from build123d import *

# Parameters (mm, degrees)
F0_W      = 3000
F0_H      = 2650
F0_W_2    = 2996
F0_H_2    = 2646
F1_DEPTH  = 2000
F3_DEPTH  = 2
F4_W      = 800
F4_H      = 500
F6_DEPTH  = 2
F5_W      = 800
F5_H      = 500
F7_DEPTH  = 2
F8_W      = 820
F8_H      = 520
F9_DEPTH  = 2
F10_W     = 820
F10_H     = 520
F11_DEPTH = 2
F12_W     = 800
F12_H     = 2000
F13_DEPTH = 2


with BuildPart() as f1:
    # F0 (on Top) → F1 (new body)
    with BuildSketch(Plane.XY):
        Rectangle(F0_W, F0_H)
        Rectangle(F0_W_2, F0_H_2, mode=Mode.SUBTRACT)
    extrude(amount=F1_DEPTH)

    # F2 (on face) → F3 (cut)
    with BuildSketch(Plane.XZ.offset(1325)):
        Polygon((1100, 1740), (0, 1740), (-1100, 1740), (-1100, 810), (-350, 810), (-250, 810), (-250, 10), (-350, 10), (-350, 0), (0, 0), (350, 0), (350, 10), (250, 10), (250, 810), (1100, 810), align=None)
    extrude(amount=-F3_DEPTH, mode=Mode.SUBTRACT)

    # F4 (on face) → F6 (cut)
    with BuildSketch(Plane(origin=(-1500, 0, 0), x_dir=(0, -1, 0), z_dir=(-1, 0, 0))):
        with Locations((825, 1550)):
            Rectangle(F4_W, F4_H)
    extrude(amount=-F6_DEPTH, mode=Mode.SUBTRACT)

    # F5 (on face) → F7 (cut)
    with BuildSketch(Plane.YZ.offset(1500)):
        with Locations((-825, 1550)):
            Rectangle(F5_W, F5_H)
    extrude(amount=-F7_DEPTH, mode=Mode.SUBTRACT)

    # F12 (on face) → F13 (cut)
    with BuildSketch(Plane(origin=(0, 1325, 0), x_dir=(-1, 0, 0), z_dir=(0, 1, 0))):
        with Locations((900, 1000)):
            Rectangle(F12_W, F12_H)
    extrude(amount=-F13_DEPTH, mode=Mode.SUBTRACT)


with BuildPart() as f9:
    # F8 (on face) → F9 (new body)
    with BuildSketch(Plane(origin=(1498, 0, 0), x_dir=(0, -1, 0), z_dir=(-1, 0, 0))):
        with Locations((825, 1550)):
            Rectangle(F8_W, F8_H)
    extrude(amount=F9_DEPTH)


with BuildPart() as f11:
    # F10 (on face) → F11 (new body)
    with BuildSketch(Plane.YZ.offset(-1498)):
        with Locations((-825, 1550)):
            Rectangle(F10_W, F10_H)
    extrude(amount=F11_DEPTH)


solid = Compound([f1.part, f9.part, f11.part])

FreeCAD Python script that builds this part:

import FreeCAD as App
import Part
import Sketcher

doc = App.newDocument("Part")
body = doc.addObject("PartDesign::Body", "Body")

# Sketch on XY plane
sketch1 = body.newObject("Sketcher::SketchObject", "Sketch")
sketch1.AttachmentSupport = (doc.getObject("XY_Plane"), [""])
sketch1.MapMode = "FlatFace"
sketch1.addGeometry(Part.LineSegment(App.Vector(-1500, 1325, 0), App.Vector(-1500, -1325, 0)), False)
sketch1.addGeometry(Part.LineSegment(App.Vector(-1500, -1325, 0), App.Vector(1500, -1325, 0)), False)
sketch1.addGeometry(Part.LineSegment(App.Vector(1500, -1325, 0), App.Vector(1500, 1325, 0)), False)
sketch1.addGeometry(Part.LineSegment(App.Vector(1500, 1325, 0), App.Vector(-1500, 1325, 0)), False)
sketch1.addGeometry(Part.LineSegment(App.Vector(1498, -1323, 0), App.Vector(-1498, -1323, 0)), False)
sketch1.addGeometry(Part.LineSegment(App.Vector(-1498, -1323, 0), App.Vector(-1498, 1323, 0)), False)
sketch1.addGeometry(Part.LineSegment(App.Vector(-1498, 1323, 0), App.Vector(1498, 1323, 0)), False)
sketch1.addGeometry(Part.LineSegment(App.Vector(1498, 1323, 0), App.Vector(1498, -1323, 0)), False)
sketch1.addConstraint(Sketcher.Constraint("Coincident", 0, 2, 1, 1))
sketch1.addConstraint(Sketcher.Constraint("Coincident", 1, 2, 2, 1))
sketch1.addConstraint(Sketcher.Constraint("Coincident", 2, 2, 3, 1))
sketch1.addConstraint(Sketcher.Constraint("Coincident", 3, 2, 0, 1))
sketch1.addConstraint(Sketcher.Constraint("Coincident", 4, 2, 5, 1))
sketch1.addConstraint(Sketcher.Constraint("Coincident", 5, 2, 6, 1))
sketch1.addConstraint(Sketcher.Constraint("Coincident", 6, 2, 7, 1))
sketch1.addConstraint(Sketcher.Constraint("Coincident", 7, 2, 4, 1))
sketch1.addConstraint(Sketcher.Constraint("Vertical", 0))
sketch1.addConstraint(Sketcher.Constraint("Horizontal", 1))
sketch1.addConstraint(Sketcher.Constraint("Vertical", 2))
sketch1.addConstraint(Sketcher.Constraint("Horizontal", 3))
sketch1.addConstraint(Sketcher.Constraint("Horizontal", 4))
sketch1.addConstraint(Sketcher.Constraint("Vertical", 5))
sketch1.addConstraint(Sketcher.Constraint("Horizontal", 6))
sketch1.addConstraint(Sketcher.Constraint("Vertical", 7))
sketch1.addConstraint(Sketcher.Constraint("Symmetric", 0, 2, 2, 2, -1, 1))
sketch1.addConstraint(Sketcher.Constraint("Symmetric", 4, 2, 6, 2, -1, 1))
sketch1.addConstraint(Sketcher.Constraint("DistanceX", 1, 1, 1, 2, 3000.0))
sketch1.addConstraint(Sketcher.Constraint("DistanceX", 4, 2, 4, 1, 2996.0))
sketch1.addConstraint(Sketcher.Constraint("DistanceY", 0, 2, 0, 1, 2650.0))
sketch1.addConstraint(Sketcher.Constraint("DistanceY", 5, 1, 5, 2, 2646.0))
pad1 = body.newObject("PartDesign::Pad", "Pad")
pad1.Profile = sketch1
pad1.Length = 2000

# Sketch on XZ plane
sketch2 = body.newObject("Sketcher::SketchObject", "Sketch001")
sketch2.AttachmentSupport = (doc.getObject("XZ_Plane"), [""])
sketch2.MapMode = "FlatFace"
sketch2.AttachmentOffset = App.Placement(App.Vector(0, 0, 1325), App.Rotation())
sketch2.addGeometry(Part.LineSegment(App.Vector(1100, 1740, 0), App.Vector(-1100, 1740, 0)), False)
sketch2.addGeometry(Part.LineSegment(App.Vector(-1100, 1740, 0), App.Vector(-1100, 810, 0)), False)
sketch2.addGeometry(Part.LineSegment(App.Vector(-1100, 810, 0), App.Vector(-250, 810, 0)), False)
sketch2.addGeometry(Part.LineSegment(App.Vector(-250, 810, 0), App.Vector(-250, 10, 0)), False)
sketch2.addGeometry(Part.LineSegment(App.Vector(-250, 10, 0), App.Vector(-350, 10, 0)), False)
sketch2.addGeometry(Part.LineSegment(App.Vector(-350, 10, 0), App.Vector(-350, 0, 0)), False)
sketch2.addGeometry(Part.LineSegment(App.Vector(-350, 0, 0), App.Vector(350, 0, 0)), False)
sketch2.addGeometry(Part.LineSegment(App.Vector(350, 0, 0), App.Vector(350, 10, 0)), False)
sketch2.addGeometry(Part.LineSegment(App.Vector(350, 10, 0), App.Vector(250, 10, 0)), False)
sketch2.addGeometry(Part.LineSegment(App.Vector(250, 10, 0), App.Vector(250, 810, 0)), False)
sketch2.addGeometry(Part.LineSegment(App.Vector(250, 810, 0), App.Vector(1100, 810, 0)), False)
sketch2.addGeometry(Part.LineSegment(App.Vector(1100, 810, 0), App.Vector(1100, 1740, 0)), False)
sketch2.addConstraint(Sketcher.Constraint("Coincident", 0, 2, 1, 1))
sketch2.addConstraint(Sketcher.Constraint("Coincident", 1, 2, 2, 1))
sketch2.addConstraint(Sketcher.Constraint("Coincident", 2, 2, 3, 1))
sketch2.addConstraint(Sketcher.Constraint("Coincident", 3, 2, 4, 1))
sketch2.addConstraint(Sketcher.Constraint("Coincident", 4, 2, 5, 1))
sketch2.addConstraint(Sketcher.Constraint("Coincident", 5, 2, 6, 1))
sketch2.addConstraint(Sketcher.Constraint("Coincident", 6, 2, 7, 1))
sketch2.addConstraint(Sketcher.Constraint("Coincident", 7, 2, 8, 1))
sketch2.addConstraint(Sketcher.Constraint("Coincident", 8, 2, 9, 1))
sketch2.addConstraint(Sketcher.Constraint("Coincident", 9, 2, 10, 1))
sketch2.addConstraint(Sketcher.Constraint("Coincident", 10, 2, 11, 1))
sketch2.addConstraint(Sketcher.Constraint("Coincident", 11, 2, 0, 1))
sketch2.addConstraint(Sketcher.Constraint("Horizontal", 0))
sketch2.addConstraint(Sketcher.Constraint("Vertical", 1))
sketch2.addConstraint(Sketcher.Constraint("Horizontal", 2))
sketch2.addConstraint(Sketcher.Constraint("Vertical", 3))
sketch2.addConstraint(Sketcher.Constraint("Horizontal", 4))
sketch2.addConstraint(Sketcher.Constraint("Vertical", 5))
sketch2.addConstraint(Sketcher.Constraint("Horizontal", 6))
sketch2.addConstraint(Sketcher.Constraint("Vertical", 7))
sketch2.addConstraint(Sketcher.Constraint("Horizontal", 8))
sketch2.addConstraint(Sketcher.Constraint("Vertical", 9))
sketch2.addConstraint(Sketcher.Constraint("Horizontal", 10))
sketch2.addConstraint(Sketcher.Constraint("Vertical", 11))
sketch2.addConstraint(Sketcher.Constraint("Symmetric", 5, 2, 6, 2, -1, 1))
sketch2.addConstraint(Sketcher.Constraint("Symmetric", 3, 2, 8, 2, -2))
sketch2.addConstraint(Sketcher.Constraint("Symmetric", 1, 2, 10, 2, -2))
sketch2.addConstraint(Sketcher.Constraint("DistanceX", 0, 2, 0, 1, 2200.0))
sketch2.addConstraint(Sketcher.Constraint("DistanceX", 2, 1, 2, 2, 850.0))
sketch2.addConstraint(Sketcher.Constraint("DistanceX", 4, 2, 4, 1, 100.0))
sketch2.addConstraint(Sketcher.Constraint("DistanceY", 1, 2, 1, 1, 930.0))
sketch2.addConstraint(Sketcher.Constraint("DistanceY", 3, 2, 3, 1, 800.0))
sketch2.addConstraint(Sketcher.Constraint("DistanceY", 5, 2, 5, 1, 10.0))
pocket1 = body.newObject("PartDesign::Pocket", "Pocket")
pocket1.Profile = sketch2
pocket1.Length = 2

# Sketch on YZ plane
sketch3 = body.newObject("Sketcher::SketchObject", "Sketch002")
sketch3.AttachmentSupport = (doc.getObject("YZ_Plane"), [""])
sketch3.MapMode = "FlatFace"
sketch3.AttachmentOffset = App.Placement(App.Vector(0, 0, -1500), App.Rotation())
sketch3.addGeometry(Part.LineSegment(App.Vector(-425, 1800, 0), App.Vector(-425, 1300, 0)), False)
sketch3.addGeometry(Part.LineSegment(App.Vector(-425, 1300, 0), App.Vector(-1225, 1300, 0)), False)
sketch3.addGeometry(Part.LineSegment(App.Vector(-1225, 1300, 0), App.Vector(-1225, 1800, 0)), False)
sketch3.addGeometry(Part.LineSegment(App.Vector(-1225, 1800, 0), App.Vector(-425, 1800, 0)), False)
sketch3.addConstraint(Sketcher.Constraint("Coincident", 0, 2, 1, 1))
sketch3.addConstraint(Sketcher.Constraint("Coincident", 1, 2, 2, 1))
sketch3.addConstraint(Sketcher.Constraint("Coincident", 2, 2, 3, 1))
sketch3.addConstraint(Sketcher.Constraint("Coincident", 3, 2, 0, 1))
sketch3.addConstraint(Sketcher.Constraint("Vertical", 0))
sketch3.addConstraint(Sketcher.Constraint("Horizontal", 1))
sketch3.addConstraint(Sketcher.Constraint("Vertical", 2))
sketch3.addConstraint(Sketcher.Constraint("Horizontal", 3))
sketch3.addConstraint(Sketcher.Constraint("DistanceX", 1, 2, 1, 1, 800.0))
sketch3.addConstraint(Sketcher.Constraint("DistanceY", 0, 2, 0, 1, 500.0))
sketch3.addConstraint(Sketcher.Constraint("DistanceX", 0, 2, -1, 1, 425.0))
sketch3.addConstraint(Sketcher.Constraint("DistanceY", -1, 1, 0, 2, 1300.0))
pocket2 = body.newObject("PartDesign::Pocket", "Pocket001")
pocket2.Profile = sketch3
pocket2.Length = 2
pocket2.Reversed = True

# Sketch on YZ plane
sketch4 = body.newObject("Sketcher::SketchObject", "Sketch003")
sketch4.AttachmentSupport = (doc.getObject("YZ_Plane"), [""])
sketch4.MapMode = "FlatFace"
sketch4.AttachmentOffset = App.Placement(App.Vector(0, 0, 1500), App.Rotation())
sketch4.addGeometry(Part.LineSegment(App.Vector(-1225, 1800, 0), App.Vector(-1225, 1300, 0)), False)
sketch4.addGeometry(Part.LineSegment(App.Vector(-1225, 1300, 0), App.Vector(-425, 1300, 0)), False)
sketch4.addGeometry(Part.LineSegment(App.Vector(-425, 1300, 0), App.Vector(-425, 1800, 0)), False)
sketch4.addGeometry(Part.LineSegment(App.Vector(-425, 1800, 0), App.Vector(-1225, 1800, 0)), False)
sketch4.addConstraint(Sketcher.Constraint("Coincident", 0, 2, 1, 1))
sketch4.addConstraint(Sketcher.Constraint("Coincident", 1, 2, 2, 1))
sketch4.addConstraint(Sketcher.Constraint("Coincident", 2, 2, 3, 1))
sketch4.addConstraint(Sketcher.Constraint("Coincident", 3, 2, 0, 1))
sketch4.addConstraint(Sketcher.Constraint("Vertical", 0))
sketch4.addConstraint(Sketcher.Constraint("Horizontal", 1))
sketch4.addConstraint(Sketcher.Constraint("Vertical", 2))
sketch4.addConstraint(Sketcher.Constraint("Horizontal", 3))
sketch4.addConstraint(Sketcher.Constraint("DistanceX", 1, 1, 1, 2, 800.0))
sketch4.addConstraint(Sketcher.Constraint("DistanceY", 0, 2, 0, 1, 500.0))
sketch4.addConstraint(Sketcher.Constraint("DistanceX", 0, 2, -1, 1, 1225.0))
sketch4.addConstraint(Sketcher.Constraint("DistanceY", -1, 1, 0, 2, 1300.0))
pocket3 = body.newObject("PartDesign::Pocket", "Pocket002")
pocket3.Profile = sketch4
pocket3.Length = 2

# Sketch on XZ plane
sketch5 = body.newObject("Sketcher::SketchObject", "Sketch004")
sketch5.AttachmentSupport = (doc.getObject("XZ_Plane"), [""])
sketch5.MapMode = "FlatFace"
sketch5.AttachmentOffset = App.Placement(App.Vector(0, 0, -1325), App.Rotation())
sketch5.addGeometry(Part.LineSegment(App.Vector(-500, 2000, 0), App.Vector(-500, 0, 0)), False)
sketch5.addGeometry(Part.LineSegment(App.Vector(-500, 0, 0), App.Vector(-1300, 0, 0)), False)
sketch5.addGeometry(Part.LineSegment(App.Vector(-1300, 0, 0), App.Vector(-1300, 2000, 0)), False)
sketch5.addGeometry(Part.LineSegment(App.Vector(-1300, 2000, 0), App.Vector(-500, 2000, 0)), False)
sketch5.addConstraint(Sketcher.Constraint("Coincident", 0, 2, 1, 1))
sketch5.addConstraint(Sketcher.Constraint("Coincident", 1, 2, 2, 1))
sketch5.addConstraint(Sketcher.Constraint("Coincident", 2, 2, 3, 1))
sketch5.addConstraint(Sketcher.Constraint("Coincident", 3, 2, 0, 1))
sketch5.addConstraint(Sketcher.Constraint("Vertical", 0))
sketch5.addConstraint(Sketcher.Constraint("Horizontal", 1))
sketch5.addConstraint(Sketcher.Constraint("Vertical", 2))
sketch5.addConstraint(Sketcher.Constraint("Horizontal", 3))
sketch5.addConstraint(Sketcher.Constraint("PointOnObject", 0, 2, -1))
sketch5.addConstraint(Sketcher.Constraint("DistanceX", 1, 2, 1, 1, 800.0))
sketch5.addConstraint(Sketcher.Constraint("DistanceY", 0, 2, 0, 1, 2000.0))
sketch5.addConstraint(Sketcher.Constraint("DistanceX", 0, 2, -1, 1, 500.0))
pocket4 = body.newObject("PartDesign::Pocket", "Pocket003")
pocket4.Profile = sketch5
pocket4.Length = 2
pocket4.Reversed = True
body2 = doc.addObject("PartDesign::Body", "Body001")

# Sketch on YZ plane
sketch6 = body2.newObject("Sketcher::SketchObject", "Sketch005")
sketch6.AttachmentSupport = (doc.getObject("YZ_Plane001"), [""])
sketch6.MapMode = "FlatFace"
sketch6.AttachmentOffset = App.Placement(App.Vector(0, 0, 1498), App.Rotation())
sketch6.addGeometry(Part.LineSegment(App.Vector(-415, 1810, 0), App.Vector(-415, 1290, 0)), False)
sketch6.addGeometry(Part.LineSegment(App.Vector(-415, 1290, 0), App.Vector(-1235, 1290, 0)), False)
sketch6.addGeometry(Part.LineSegment(App.Vector(-1235, 1290, 0), App.Vector(-1235, 1810, 0)), False)
sketch6.addGeometry(Part.LineSegment(App.Vector(-1235, 1810, 0), App.Vector(-415, 1810, 0)), False)
sketch6.addConstraint(Sketcher.Constraint("Coincident", 0, 2, 1, 1))
sketch6.addConstraint(Sketcher.Constraint("Coincident", 1, 2, 2, 1))
sketch6.addConstraint(Sketcher.Constraint("Coincident", 2, 2, 3, 1))
sketch6.addConstraint(Sketcher.Constraint("Coincident", 3, 2, 0, 1))
sketch6.addConstraint(Sketcher.Constraint("Vertical", 0))
sketch6.addConstraint(Sketcher.Constraint("Horizontal", 1))
sketch6.addConstraint(Sketcher.Constraint("Vertical", 2))
sketch6.addConstraint(Sketcher.Constraint("Horizontal", 3))
sketch6.addConstraint(Sketcher.Constraint("DistanceX", 1, 2, 1, 1, 820.0))
sketch6.addConstraint(Sketcher.Constraint("DistanceY", 0, 2, 0, 1, 520.0))
sketch6.addConstraint(Sketcher.Constraint("DistanceX", 0, 2, -1, 1, 415.0))
sketch6.addConstraint(Sketcher.Constraint("DistanceY", -1, 1, 0, 2, 1290.0))
pad2 = body2.newObject("PartDesign::Pad", "Pad001")
pad2.Profile = sketch6
pad2.Length = 2
pad2.Reversed = True
body3 = doc.addObject("PartDesign::Body", "Body002")

# Sketch on YZ plane
sketch7 = body3.newObject("Sketcher::SketchObject", "Sketch006")
sketch7.AttachmentSupport = (doc.getObject("YZ_Plane002"), [""])
sketch7.MapMode = "FlatFace"
sketch7.AttachmentOffset = App.Placement(App.Vector(0, 0, -1498), App.Rotation())
sketch7.addGeometry(Part.LineSegment(App.Vector(-1235, 1810, 0), App.Vector(-1235, 1290, 0)), False)
sketch7.addGeometry(Part.LineSegment(App.Vector(-1235, 1290, 0), App.Vector(-415, 1290, 0)), False)
sketch7.addGeometry(Part.LineSegment(App.Vector(-415, 1290, 0), App.Vector(-415, 1810, 0)), False)
sketch7.addGeometry(Part.LineSegment(App.Vector(-415, 1810, 0), App.Vector(-1235, 1810, 0)), False)
sketch7.addConstraint(Sketcher.Constraint("Coincident", 0, 2, 1, 1))
sketch7.addConstraint(Sketcher.Constraint("Coincident", 1, 2, 2, 1))
sketch7.addConstraint(Sketcher.Constraint("Coincident", 2, 2, 3, 1))
sketch7.addConstraint(Sketcher.Constraint("Coincident", 3, 2, 0, 1))
sketch7.addConstraint(Sketcher.Constraint("Vertical", 0))
sketch7.addConstraint(Sketcher.Constraint("Horizontal", 1))
sketch7.addConstraint(Sketcher.Constraint("Vertical", 2))
sketch7.addConstraint(Sketcher.Constraint("Horizontal", 3))
sketch7.addConstraint(Sketcher.Constraint("DistanceX", 1, 1, 1, 2, 820.0))
sketch7.addConstraint(Sketcher.Constraint("DistanceY", 0, 2, 0, 1, 520.0))
sketch7.addConstraint(Sketcher.Constraint("DistanceX", 0, 2, -1, 1, 1235.0))
sketch7.addConstraint(Sketcher.Constraint("DistanceY", -1, 1, 0, 2, 1290.0))
pad3 = body3.newObject("PartDesign::Pad", "Pad002")
pad3.Profile = sketch7
pad3.Length = 2

doc.recompute()
